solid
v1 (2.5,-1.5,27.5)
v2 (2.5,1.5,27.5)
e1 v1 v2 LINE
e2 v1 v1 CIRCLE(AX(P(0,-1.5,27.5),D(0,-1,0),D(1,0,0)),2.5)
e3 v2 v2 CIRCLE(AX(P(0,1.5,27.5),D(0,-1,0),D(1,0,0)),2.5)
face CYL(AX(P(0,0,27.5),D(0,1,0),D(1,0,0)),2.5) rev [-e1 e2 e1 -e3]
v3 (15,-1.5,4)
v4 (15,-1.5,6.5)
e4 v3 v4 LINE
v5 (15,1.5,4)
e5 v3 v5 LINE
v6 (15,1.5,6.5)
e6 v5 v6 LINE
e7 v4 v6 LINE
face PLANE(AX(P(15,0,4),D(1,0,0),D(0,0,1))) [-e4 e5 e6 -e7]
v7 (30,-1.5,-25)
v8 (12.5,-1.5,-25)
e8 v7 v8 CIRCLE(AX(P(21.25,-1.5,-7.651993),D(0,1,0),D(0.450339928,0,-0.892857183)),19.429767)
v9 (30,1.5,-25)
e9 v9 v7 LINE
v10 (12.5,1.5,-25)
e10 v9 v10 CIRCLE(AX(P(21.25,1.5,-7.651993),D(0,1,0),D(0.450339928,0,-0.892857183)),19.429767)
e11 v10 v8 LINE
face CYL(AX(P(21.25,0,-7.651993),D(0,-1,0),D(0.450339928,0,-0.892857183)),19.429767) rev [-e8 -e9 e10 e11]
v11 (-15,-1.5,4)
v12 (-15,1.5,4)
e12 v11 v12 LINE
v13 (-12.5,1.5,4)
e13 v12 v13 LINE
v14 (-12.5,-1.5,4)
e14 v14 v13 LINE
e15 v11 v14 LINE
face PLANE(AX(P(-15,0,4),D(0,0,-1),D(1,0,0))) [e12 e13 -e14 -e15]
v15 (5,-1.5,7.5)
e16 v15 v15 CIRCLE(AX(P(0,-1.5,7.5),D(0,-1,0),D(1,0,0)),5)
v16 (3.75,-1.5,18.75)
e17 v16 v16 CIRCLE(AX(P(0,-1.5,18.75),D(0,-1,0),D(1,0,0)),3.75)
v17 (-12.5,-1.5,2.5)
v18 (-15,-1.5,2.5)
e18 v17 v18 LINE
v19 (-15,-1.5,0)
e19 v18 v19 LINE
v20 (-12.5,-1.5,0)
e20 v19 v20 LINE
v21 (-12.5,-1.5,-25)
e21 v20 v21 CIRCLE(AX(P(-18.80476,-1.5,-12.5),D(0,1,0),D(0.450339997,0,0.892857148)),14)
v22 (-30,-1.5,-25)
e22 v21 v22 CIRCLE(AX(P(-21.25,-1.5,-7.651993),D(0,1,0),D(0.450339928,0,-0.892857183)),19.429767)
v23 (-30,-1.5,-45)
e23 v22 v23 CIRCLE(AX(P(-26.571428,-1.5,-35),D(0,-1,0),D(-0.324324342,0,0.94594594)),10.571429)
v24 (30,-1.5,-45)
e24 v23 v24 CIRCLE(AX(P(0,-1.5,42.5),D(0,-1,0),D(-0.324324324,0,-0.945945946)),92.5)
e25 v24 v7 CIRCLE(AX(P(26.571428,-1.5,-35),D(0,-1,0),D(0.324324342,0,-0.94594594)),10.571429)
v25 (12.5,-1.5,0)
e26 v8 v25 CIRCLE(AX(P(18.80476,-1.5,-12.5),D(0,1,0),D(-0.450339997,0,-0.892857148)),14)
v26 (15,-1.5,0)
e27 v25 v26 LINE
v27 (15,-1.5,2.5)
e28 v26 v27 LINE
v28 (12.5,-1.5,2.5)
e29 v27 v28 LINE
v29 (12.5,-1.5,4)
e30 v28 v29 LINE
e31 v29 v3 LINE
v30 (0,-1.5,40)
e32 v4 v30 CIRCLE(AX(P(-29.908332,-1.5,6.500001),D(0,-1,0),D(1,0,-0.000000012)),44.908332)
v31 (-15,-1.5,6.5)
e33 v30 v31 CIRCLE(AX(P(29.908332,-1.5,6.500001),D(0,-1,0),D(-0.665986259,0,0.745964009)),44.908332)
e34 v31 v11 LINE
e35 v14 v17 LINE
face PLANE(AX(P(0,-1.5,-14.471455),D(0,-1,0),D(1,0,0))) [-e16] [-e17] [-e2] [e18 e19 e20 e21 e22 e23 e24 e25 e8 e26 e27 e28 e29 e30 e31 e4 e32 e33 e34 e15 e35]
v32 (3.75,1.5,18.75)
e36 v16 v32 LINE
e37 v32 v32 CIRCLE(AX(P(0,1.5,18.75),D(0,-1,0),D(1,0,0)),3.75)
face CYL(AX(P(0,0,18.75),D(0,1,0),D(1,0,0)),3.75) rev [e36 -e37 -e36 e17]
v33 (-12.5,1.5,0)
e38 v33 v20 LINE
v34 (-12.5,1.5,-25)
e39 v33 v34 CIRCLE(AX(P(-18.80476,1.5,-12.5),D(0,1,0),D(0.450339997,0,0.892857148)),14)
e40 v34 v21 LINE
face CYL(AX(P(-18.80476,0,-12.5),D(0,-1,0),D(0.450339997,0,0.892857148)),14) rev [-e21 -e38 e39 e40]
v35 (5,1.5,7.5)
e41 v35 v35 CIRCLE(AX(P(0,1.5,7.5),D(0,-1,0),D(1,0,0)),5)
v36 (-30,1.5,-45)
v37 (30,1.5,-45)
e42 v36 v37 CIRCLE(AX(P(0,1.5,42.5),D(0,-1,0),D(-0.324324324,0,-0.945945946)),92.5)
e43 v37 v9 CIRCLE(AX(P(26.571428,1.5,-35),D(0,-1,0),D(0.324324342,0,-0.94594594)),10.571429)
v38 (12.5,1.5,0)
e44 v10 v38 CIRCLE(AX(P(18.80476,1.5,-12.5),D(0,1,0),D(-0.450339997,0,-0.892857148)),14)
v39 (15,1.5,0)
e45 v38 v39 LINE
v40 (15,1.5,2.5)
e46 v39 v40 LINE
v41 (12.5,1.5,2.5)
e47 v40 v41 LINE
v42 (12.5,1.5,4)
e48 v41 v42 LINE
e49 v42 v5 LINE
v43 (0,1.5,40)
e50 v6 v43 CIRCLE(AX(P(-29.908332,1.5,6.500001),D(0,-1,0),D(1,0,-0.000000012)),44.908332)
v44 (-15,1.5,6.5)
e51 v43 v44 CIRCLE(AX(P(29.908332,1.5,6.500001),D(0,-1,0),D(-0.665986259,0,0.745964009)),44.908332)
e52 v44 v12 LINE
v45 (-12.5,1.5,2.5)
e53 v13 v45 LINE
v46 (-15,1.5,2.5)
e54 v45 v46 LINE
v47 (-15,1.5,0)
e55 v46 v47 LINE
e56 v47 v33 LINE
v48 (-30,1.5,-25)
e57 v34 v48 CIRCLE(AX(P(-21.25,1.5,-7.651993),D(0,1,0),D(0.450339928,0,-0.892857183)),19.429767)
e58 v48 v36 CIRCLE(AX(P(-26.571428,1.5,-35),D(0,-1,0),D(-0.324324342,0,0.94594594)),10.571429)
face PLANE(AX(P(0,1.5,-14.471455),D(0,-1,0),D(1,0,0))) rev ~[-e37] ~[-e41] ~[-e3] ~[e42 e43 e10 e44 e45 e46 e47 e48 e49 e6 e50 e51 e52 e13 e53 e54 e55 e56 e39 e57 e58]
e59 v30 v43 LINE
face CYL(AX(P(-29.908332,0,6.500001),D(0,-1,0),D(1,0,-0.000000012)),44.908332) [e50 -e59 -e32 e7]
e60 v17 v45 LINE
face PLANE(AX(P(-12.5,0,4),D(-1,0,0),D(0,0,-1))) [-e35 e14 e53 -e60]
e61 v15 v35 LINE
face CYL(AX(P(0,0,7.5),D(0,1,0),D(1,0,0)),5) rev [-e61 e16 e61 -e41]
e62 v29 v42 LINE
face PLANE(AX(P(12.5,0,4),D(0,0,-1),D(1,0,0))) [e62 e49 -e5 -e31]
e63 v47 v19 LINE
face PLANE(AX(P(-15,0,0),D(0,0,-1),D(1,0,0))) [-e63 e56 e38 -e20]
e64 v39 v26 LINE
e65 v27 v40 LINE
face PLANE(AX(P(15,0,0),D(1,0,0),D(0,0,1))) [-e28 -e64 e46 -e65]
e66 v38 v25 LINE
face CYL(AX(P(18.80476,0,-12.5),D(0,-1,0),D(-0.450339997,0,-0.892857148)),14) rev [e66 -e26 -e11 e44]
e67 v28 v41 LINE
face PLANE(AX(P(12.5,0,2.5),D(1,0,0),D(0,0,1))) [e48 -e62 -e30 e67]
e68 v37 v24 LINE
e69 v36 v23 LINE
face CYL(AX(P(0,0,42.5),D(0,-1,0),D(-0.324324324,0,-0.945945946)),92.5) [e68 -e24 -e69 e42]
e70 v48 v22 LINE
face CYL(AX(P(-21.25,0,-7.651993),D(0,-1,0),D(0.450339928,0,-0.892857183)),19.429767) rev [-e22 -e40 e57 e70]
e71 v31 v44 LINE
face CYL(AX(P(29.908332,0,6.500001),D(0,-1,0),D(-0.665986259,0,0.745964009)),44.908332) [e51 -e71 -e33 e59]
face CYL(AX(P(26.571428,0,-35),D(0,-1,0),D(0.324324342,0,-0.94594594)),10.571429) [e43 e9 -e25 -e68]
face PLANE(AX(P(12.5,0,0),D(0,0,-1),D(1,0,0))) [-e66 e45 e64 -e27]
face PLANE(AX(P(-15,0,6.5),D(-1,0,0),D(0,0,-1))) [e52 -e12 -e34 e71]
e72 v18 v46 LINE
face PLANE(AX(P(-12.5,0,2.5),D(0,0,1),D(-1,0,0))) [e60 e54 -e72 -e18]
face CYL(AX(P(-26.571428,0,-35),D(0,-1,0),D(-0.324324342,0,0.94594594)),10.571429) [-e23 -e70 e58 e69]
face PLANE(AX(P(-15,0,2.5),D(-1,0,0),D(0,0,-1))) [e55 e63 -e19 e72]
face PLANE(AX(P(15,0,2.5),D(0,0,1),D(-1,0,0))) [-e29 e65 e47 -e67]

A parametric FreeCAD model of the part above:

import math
import FreeCAD as App
import Part
import Sketcher
from FreeCAD import Vector
Q = App.Units.Quantity

doc = App.newDocument("Part")
body = doc.addObject("PartDesign::Body", "Body")

# Sketch on XZ plane
sketch1 = body.newObject("Sketcher::SketchObject", "Sketch")
sketch1.AttachmentSupport = (doc.getObject("XZ_Plane"), [""])
sketch1.MapMode = "FlatFace"
sketch1.addGeometry(Part.LineSegment(Vector(-15, 2.5, 0), Vector(-15, 0, 0)), False)
sketch1.addGeometry(Part.LineSegment(Vector(-15, 0, 0), Vector(-12.5, 0, 0)), False)
sketch1.addGeometry(Part.ArcOfCircle(Part.Circle(Vector(-18.8, -12.5, 0), Vector(0, 0, 1), 14), math.radians(-63), math.radians(63)), False)
sketch1.addGeometry(Part.ArcOfCircle(Part.Circle(Vector(-21.2, -7.7, 0), Vector(0, 0, 1), 19.4), math.radians(-117), math.radians(-63)), False)
sketch1.addGeometry(Part.ArcOfCircle(Part.Circle(Vector(-26.6, -35, 0), Vector(0, 0, 1), 10.6), math.radians(109), math.radians(251)), False)
sketch1.addGeometry(Part.ArcOfCircle(Part.Circle(Vector(0, 42.5, 0), Vector(0, 0, 1), 92.5), math.radians(-109), math.radians(-71)), False)
sketch1.addGeometry(Part.ArcOfCircle(Part.Circle(Vector(26.6, -35, 0), Vector(0, 0, 1), 10.6), math.radians(-71), math.radians(71)), False)
sketch1.addGeometry(Part.ArcOfCircle(Part.Circle(Vector(21.2, -7.7, 0), Vector(0, 0, 1), 19.4), math.radians(-117), math.radians(-63)), False)
sketch1.addGeometry(Part.ArcOfCircle(Part.Circle(Vector(18.8, -12.5, 0), Vector(0, 0, 1), 14), math.radians(117), math.radians(243)), False)
sketch1.addGeometry(Part.LineSegment(Vector(12.5, 0, 0), Vector(15, 0, 0)), False)
sketch1.addGeometry(Part.LineSegment(Vector(15, 0, 0), Vector(15, 2.5, 0)), False)
sketch1.addGeometry(Part.LineSegment(Vector(15, 2.5, 0), Vector(12.5, 2.5, 0)), False)
sketch1.addGeometry(Part.LineSegment(Vector(12.5, 2.5, 0), Vector(12.5, 4, 0)), False)
sketch1.addGeometry(Part.LineSegment(Vector(12.5, 4, 0), Vector(15, 4, 0)), False)
sketch1.addGeometry(Part.LineSegment(Vector(15, 4, 0), Vector(15, 6.5, 0)), False)
sketch1.addGeometry(Part.ArcOfCircle(Part.Circle(Vector(-29.9, 6.5, 0), Vector(0, 0, 1), 44.9), math.radians(0), math.radians(48)), False)
sketch1.addGeometry(Part.ArcOfCircle(Part.Circle(Vector(29.9, 6.5, 0), Vector(0, 0, 1), 44.9), math.radians(132), math.radians(180)), False)
sketch1.addGeometry(Part.LineSegment(Vector(-15, 6.5, 0), Vector(-15, 4, 0)), False)
sketch1.addGeometry(Part.LineSegment(Vector(-15, 4, 0), Vector(-12.5, 4, 0)), False)
sketch1.addGeometry(Part.LineSegment(Vector(-12.5, 4, 0), Vector(-12.5, 2.5, 0)), False)
sketch1.addGeometry(Part.LineSegment(Vector(-12.5, 2.5, 0), Vector(-15, 2.5, 0)), False)
sketch1.addGeometry(Part.Circle(Vector(0, 7.5, 0), Vector(0, 0, 1), 5), False)
sketch1.addGeometry(Part.Circle(Vector(0, 18.8, 0), Vector(0, 0, 1), 3.8), False)
sketch1.addGeometry(Part.Circle(Vector(0, 27.5, 0), Vector(0, 0, 1), 2.5), False)
sketch1.addConstraint(Sketcher.Constraint("Coincident", 0, 2, 1, 1))
sketch1.addConstraint(Sketcher.Constraint("Coincident", 1, 2, 2, 2))
sketch1.addConstraint(Sketcher.Constraint("Tangent", 2, 1, 3, 2))
sketch1.addConstraint(Sketcher.Constraint("Coincident", 3, 1, 4, 1))
sketch1.addConstraint(Sketcher.Constraint("Tangent", 4, 2, 5, 1))
sketch1.addConstraint(Sketcher.Constraint("Tangent", 5, 2, 6, 1))
sketch1.addConstraint(Sketcher.Constraint("Coincident", 6, 2, 7, 2))
sketch1.addConstraint(Sketcher.Constraint("Tangent", 7, 1, 8, 2))
sketch1.addConstraint(Sketcher.Constraint("Coincident", 8, 1, 9, 1))
sketch1.addConstraint(Sketcher.Constraint("Coincident", 9, 2, 10, 1))
sketch1.addConstraint(Sketcher.Constraint("Coincident", 10, 2, 11, 1))
sketch1.addConstraint(Sketcher.Constraint("Coincident", 11, 2, 12, 1))
sketch1.addConstraint(Sketcher.Constraint("Coincident", 12, 2, 13, 1))
sketch1.addConstraint(Sketcher.Constraint("Coincident", 13, 2, 14, 1))
sketch1.addConstraint(Sketcher.Constraint("Tangent", 14, 2, 15, 1))
sketch1.addConstraint(Sketcher.Constraint("Coincident", 15, 2, 16, 1))
sketch1.addConstraint(Sketcher.Constraint("Tangent", 16, 2, 17, 1))
sketch1.addConstraint(Sketcher.Constraint("Coincident", 17, 2, 18, 1))
sketch1.addConstraint(Sketcher.Constraint("Coincident", 18, 2, 19, 1))
sketch1.addConstraint(Sketcher.Constraint("Coincident", 19, 2, 20, 1))
sketch1.addConstraint(Sketcher.Constraint("Coincident", 20, 2, 0, 1))
sketch1.addConstraint(Sketcher.Constraint("Vertical", 0))
sketch1.addConstraint(Sketcher.Constraint("Horizontal", 1))
sketch1.addConstraint(Sketcher.Constraint("Horizontal", 9))
sketch1.addConstraint(Sketcher.Constraint("Vertical", 10))
sketch1.addConstraint(Sketcher.Constraint("Horizontal", 11))
sketch1.addConstraint(Sketcher.Constraint("Vertical", 12))
sketch1.addConstraint(Sketcher.Constraint("Horizontal", 13))
sketch1.addConstraint(Sketcher.Constraint("Vertical", 14))
sketch1.addConstraint(Sketcher.Constraint("Vertical", 17))
sketch1.addConstraint(Sketcher.Constraint("Horizontal", 18))
sketch1.addConstraint(Sketcher.Constraint("Vertical", 19))
sketch1.addConstraint(Sketcher.Constraint("Horizontal", 20))
sketch1.addConstraint(Sketcher.Constraint("Equal", 4, 6))
sketch1.addConstraint(Sketcher.Constraint("Equal", 3, 7))
sketch1.addConstraint(Sketcher.Constraint("Equal", 2, 8))
sketch1.addConstraint(Sketcher.Constraint("Equal", 15, 16))
sketch1.addConstraint(Sketcher.Constraint("Symmetric", 1, 2, 8, 1, -1, 1))
sketch1.addConstraint(Sketcher.Constraint("Symmetric", 4, 3, 6, 3, -2))
sketch1.addConstraint(Sketcher.Constraint("Symmetric", 3, 3, 7, 3, -2))
sketch1.addConstraint(Sketcher.Constraint("Symmetric", 15, 3, 16, 3, -2))
sketch1.addConstraint(Sketcher.Constraint("Symmetric", 0, 2, 9, 2, -2))
sketch1.addConstraint(Sketcher.Constraint("Symmetric", 12, 2, 18, 2, -2))
sketch1.addConstraint(Sketcher.Constraint("PointOnObject", 21, 3, -2))
sketch1.addConstraint(Sketcher.Constraint("PointOnObject", 22, 3, -2))
sketch1.addConstraint(Sketcher.Constraint("PointOnObject", 23, 3, -2))
sketch1.addConstraint(Sketcher.Constraint("Horizontal", 2, 1, 3, 1))
sketch1.addConstraint(Sketcher.Constraint("Horizontal", 11, 2, 19, 2))
sketch1.addConstraint(Sketcher.Constraint("Vertical", 1, 2, 2, 1))
sketch1.addConstraint(Sketcher.Constraint("Vertical", 3, 1, 4, 2))
sketch1.addConstraint(Sketcher.Constraint("Vertical", 8, 1, 11, 2))
sketch1.addConstraint(Sketcher.Constraint("Vertical", 10, 2, 13, 2))
sketch1.addConstraint(Sketcher.Constraint("Equal", 20, 0))
sketch1.addConstraint(Sketcher.Constraint("Equal", 10, 14))
sketch1.addConstraint(Sketcher.Constraint("Diameter", 21, Q("10 mm")))
sketch1.addConstraint(Sketcher.Constraint("Diameter", 23, Q("5 mm")))
sketch1.addConstraint(Sketcher.Constraint("Radius", 2, Q("14 mm")))
sketch1.addConstraint(Sketcher.Constraint("Diameter", 22, Q("7.5 mm")))
sketch1.addConstraint(Sketcher.Constraint("Radius", 5, Q("92.5 mm")))
sketch1.addConstraint(Sketcher.Constraint("DistanceX", 1, 1, 1, 2, Q("2.5 mm")))
sketch1.addConstraint(Sketcher.Constraint("DistanceY", 12, 1, 12, 2, Q("1.5 mm")))
sketch1.addConstraint(Sketcher.Constraint("DistanceY", 4, 3, -1, 1, Q("35 mm")))
sketch1.addConstraint(Sketcher.Constraint("DistanceX", 0, 2, -1, 1, Q("15 mm")))
sketch1.addConstraint(Sketcher.Constraint("DistanceY", 2, 1, -1, 1, Q("25 mm")))
sketch1.addConstraint(Sketcher.Constraint("DistanceX", 3, 1, -1, 1, Q("30 mm")))
sketch1.addConstraint(Sketcher.Constraint("DistanceY", -1, 1, 15, 2, Q("40 mm")))
sketch1.addConstraint(Sketcher.Constraint("DistanceY", 2, 3, 21, 3, Q("20 mm")))
sketch1.addConstraint(Sketcher.Constraint("DistanceY", 23, 3, 5, 3, Q("15 mm")))
sketch1.addConstraint(Sketcher.Constraint("DistanceY", -1, 1, 22, 3, Q("18.75 mm")))
pad1 = body.newObject("PartDesign::Pad", "Pad")
pad1.Profile = sketch1
pad1.Length = 3
pad1.Midplane = True

doc.recompute()
